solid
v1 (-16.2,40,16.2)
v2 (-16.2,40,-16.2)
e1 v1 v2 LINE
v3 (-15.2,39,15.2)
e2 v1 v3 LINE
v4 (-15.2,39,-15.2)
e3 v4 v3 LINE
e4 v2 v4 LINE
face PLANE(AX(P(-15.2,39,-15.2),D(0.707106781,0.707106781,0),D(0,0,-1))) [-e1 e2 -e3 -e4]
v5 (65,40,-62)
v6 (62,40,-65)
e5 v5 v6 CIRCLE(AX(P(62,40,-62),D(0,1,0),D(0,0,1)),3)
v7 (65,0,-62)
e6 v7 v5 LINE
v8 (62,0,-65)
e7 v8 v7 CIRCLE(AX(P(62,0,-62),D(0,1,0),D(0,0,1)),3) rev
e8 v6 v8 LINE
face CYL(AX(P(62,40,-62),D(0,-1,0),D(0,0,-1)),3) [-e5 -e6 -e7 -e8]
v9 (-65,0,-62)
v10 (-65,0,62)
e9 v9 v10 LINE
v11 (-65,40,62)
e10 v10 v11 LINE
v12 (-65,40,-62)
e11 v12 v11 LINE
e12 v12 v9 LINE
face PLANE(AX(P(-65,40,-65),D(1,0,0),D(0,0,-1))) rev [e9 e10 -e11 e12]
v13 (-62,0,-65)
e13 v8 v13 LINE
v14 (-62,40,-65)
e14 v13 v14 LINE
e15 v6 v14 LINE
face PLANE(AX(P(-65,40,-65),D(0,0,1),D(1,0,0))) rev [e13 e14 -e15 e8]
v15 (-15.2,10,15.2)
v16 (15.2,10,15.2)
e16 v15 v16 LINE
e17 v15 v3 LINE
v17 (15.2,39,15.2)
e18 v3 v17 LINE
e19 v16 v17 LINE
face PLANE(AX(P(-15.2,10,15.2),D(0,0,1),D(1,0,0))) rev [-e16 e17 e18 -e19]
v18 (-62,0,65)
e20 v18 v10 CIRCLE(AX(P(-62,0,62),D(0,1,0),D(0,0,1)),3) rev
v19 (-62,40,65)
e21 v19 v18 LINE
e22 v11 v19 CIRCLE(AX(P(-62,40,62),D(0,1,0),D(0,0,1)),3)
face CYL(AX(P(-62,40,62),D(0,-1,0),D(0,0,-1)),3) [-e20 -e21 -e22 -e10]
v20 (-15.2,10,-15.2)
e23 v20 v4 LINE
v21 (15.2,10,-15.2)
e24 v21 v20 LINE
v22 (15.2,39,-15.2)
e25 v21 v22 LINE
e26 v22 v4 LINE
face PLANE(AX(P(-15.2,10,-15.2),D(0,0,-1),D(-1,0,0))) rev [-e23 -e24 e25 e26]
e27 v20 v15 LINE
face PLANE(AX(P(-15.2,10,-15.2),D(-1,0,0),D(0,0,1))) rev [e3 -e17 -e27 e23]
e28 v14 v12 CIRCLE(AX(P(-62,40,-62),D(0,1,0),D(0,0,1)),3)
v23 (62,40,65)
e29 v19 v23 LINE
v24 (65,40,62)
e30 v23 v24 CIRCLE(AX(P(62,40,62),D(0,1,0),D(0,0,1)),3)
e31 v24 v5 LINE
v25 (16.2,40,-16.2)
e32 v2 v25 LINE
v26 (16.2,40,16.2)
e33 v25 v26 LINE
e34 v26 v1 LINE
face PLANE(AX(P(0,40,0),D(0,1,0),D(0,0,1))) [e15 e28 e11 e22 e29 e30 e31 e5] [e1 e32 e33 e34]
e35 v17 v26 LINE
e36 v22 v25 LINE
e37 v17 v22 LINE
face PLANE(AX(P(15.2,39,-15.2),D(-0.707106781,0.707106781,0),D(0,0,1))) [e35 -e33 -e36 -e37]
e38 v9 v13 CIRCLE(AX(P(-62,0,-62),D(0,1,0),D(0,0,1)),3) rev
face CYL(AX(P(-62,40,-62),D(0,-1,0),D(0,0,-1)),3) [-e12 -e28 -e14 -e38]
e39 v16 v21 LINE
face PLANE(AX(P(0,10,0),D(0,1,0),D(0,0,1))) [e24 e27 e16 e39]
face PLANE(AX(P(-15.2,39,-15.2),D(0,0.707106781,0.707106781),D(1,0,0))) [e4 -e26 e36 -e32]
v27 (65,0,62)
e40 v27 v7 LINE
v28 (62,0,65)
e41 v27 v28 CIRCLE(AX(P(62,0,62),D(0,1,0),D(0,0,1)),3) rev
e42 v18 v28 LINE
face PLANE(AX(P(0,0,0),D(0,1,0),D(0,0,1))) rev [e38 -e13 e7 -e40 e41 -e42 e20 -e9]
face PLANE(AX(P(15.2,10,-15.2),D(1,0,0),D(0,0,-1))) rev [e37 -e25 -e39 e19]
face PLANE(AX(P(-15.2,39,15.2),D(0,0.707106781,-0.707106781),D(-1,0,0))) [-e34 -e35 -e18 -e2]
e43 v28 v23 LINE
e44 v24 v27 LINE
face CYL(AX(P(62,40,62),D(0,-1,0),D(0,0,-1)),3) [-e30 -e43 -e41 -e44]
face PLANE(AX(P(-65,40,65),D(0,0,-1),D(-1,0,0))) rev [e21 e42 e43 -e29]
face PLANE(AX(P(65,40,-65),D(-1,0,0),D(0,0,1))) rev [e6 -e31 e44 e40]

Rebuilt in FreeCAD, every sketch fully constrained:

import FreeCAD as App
import Part
import Sketcher
from FreeCAD import Vector
Q = App.Units.Quantity


def edges_at(feature, points):
    """Names of the edges that pass closest to the given points."""
    edges = feature.Shape.Edges
    near = lambda p: min(range(len(edges)), key=lambda i: edges[i].distToShape(Part.Vertex(*p))[0])
    return sorted({f"Edge{near(p) + 1}" for p in points})


def add_polygon(sketch, points):
    """Adds a closed chain of lines whose ends are joined by coincident constraints."""
    first, n = sketch.GeometryCount, len(points)
    for a, b in zip(points, points[1:] + points[:1]):
        sketch.addGeometry(Part.LineSegment(App.Vector(*a, 0), App.Vector(*b, 0)), False)
    for i in range(n):
        sketch.addConstraint(Sketcher.Constraint("Coincident", first + i, 2, first + (i + 1) % n, 1))

doc = App.newDocument("Part")
body = doc.addObject("PartDesign::Body", "Body")

# Sketch on XZ plane
sketch1 = doc.addObject("Sketcher::SketchObject", "Sketch")
body.addObject(sketch1)
sketch1.AttachmentSupport = (doc.XZ_Plane, [""])
sketch1.MapMode = "FlatFace"
add_polygon(sketch1, [(-65, -65), (-65, 65), (65, 65), (65, -65)])  # lines 0-3
sketch1.addConstraint([
    Sketcher.Constraint("Vertical", 0),
    Sketcher.Constraint("Horizontal", 1),
    Sketcher.Constraint("Vertical", 2),
    Sketcher.Constraint("Horizontal", 3),
    Sketcher.Constraint("Symmetric", 0, 2, 2, 2, -1, 1),
    Sketcher.Constraint("Equal", 3, 0),
    Sketcher.Constraint("DistanceX", 1, 1, 1, 2, Q("130 mm")),
])
pad1 = doc.addObject("PartDesign::Pad", "Pad")
body.addObject(pad1)
pad1.Profile = sketch1
pad1.Length = 40
pad1.Reversed = True
doc.recompute()

fillet = doc.addObject("PartDesign::Fillet", "Fillet")
body.addObject(fillet)
fillet.Base = (pad1, edges_at(pad1, [
    (65, 20, 65),
    (-65, 20, 65),
    (-65, 20, -65),
    (65, 20, -65),
]))
fillet.Radius = 3

# Sketch on XZ plane
sketch2 = doc.addObject("Sketcher::SketchObject", "Sketch001")
body.addObject(sketch2)
sketch2.AttachmentSupport = (doc.XZ_Plane, [""])
sketch2.MapMode = "FlatFace"
sketch2.AttachmentOffset = App.Placement(Vector(0, 0, -40), App.Rotation())
add_polygon(sketch2, [(-15, -15), (-15, 15), (15, 15), (15, -15)])  # lines 0-3
sketch2.addConstraint([
    Sketcher.Constraint("Vertical", 0),
    Sketcher.Constraint("Horizontal", 1),
    Sketcher.Constraint("Vertical", 2),
    Sketcher.Constraint("Horizontal", 3),
    Sketcher.Constraint("Symmetric", 0, 2, 2, 2, -1, 1),
    Sketcher.Constraint("Equal", 3, 0),
    Sketcher.Constraint("DistanceX", 1, 1, 1, 2, Q("30.4 mm")),
])
pocket1 = doc.addObject("PartDesign::Pocket", "Pocket")
body.addObject(pocket1)
pocket1.Profile = sketch2
pocket1.Length = 30
pocket1.Reversed = True
doc.recompute()

chamfer = doc.addObject("PartDesign::Chamfer", "Chamfer")
body.addObject(chamfer)
chamfer.Base = (pocket1, edges_at(pocket1, [
    (15.2, 40, 0),
    (0, 40, -15.2),
    (-15.2, 40, 0),
    (0, 40, 15.2),
]))
chamfer.Size = 1

doc.recompute()
